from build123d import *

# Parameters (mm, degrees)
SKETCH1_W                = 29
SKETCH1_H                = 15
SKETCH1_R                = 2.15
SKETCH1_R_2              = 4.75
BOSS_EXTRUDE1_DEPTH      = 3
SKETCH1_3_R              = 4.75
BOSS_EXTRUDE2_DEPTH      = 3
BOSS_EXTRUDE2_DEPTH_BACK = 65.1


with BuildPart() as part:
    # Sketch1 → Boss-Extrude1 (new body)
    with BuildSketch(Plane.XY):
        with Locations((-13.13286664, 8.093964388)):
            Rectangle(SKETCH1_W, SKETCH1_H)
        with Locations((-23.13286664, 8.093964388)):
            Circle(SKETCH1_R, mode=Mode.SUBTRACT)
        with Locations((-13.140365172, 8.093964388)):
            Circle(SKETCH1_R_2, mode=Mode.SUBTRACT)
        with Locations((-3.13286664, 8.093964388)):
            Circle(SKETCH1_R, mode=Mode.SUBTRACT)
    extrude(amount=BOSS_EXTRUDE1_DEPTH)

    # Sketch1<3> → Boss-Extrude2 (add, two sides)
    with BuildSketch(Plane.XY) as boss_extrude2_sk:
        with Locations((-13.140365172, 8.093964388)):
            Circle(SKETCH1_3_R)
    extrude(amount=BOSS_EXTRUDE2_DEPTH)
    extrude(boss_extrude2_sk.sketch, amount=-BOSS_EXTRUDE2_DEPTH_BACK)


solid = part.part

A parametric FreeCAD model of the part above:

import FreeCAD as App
import Part
import Sketcher

V = App.Vector


def add_polygon(sketch, points):
    """Adds a closed chain of lines whose ends are joined by coincident constraints."""
    first, n = sketch.GeometryCount, len(points)
    for a, b in zip(points, points[1:] + points[:1]):
        sketch.addGeometry(Part.LineSegment(App.Vector(*a, 0), App.Vector(*b, 0)), False)
    for i in range(n):
        sketch.addConstraint(Sketcher.Constraint("Coincident", first + i, 2, first + (i + 1) % n, 1))

doc = App.newDocument("Part")
body = doc.addObject("PartDesign::Body", "Body")

sketch1 = doc.addObject("Sketcher::SketchObject", "Sketch")
body.addObject(sketch1)
sketch1.AttachmentSupport = (doc.XY_Plane, [""])
sketch1.MapMode = "FlatFace"
add_polygon(sketch1, [(-27.632867, 15.593964), (-27.632867, 0.593964), (1.367133, 0.593964), (1.367133, 15.593964)])
sketch1.addGeometry(Part.Circle(V(-23.132867, 8.093964, 0), V(0, 0, 1), 2.15), False)
sketch1.addGeometry(Part.Circle(V(-13.140365, 8.093964, 0), V(0, 0, 1), 4.75), False)
sketch1.addGeometry(Part.Circle(V(-3.132867, 8.093964, 0), V(0, 0, 1), 2.15), False)
sketch1.addConstraint([
    Sketcher.Constraint("Vertical", 0),
    Sketcher.Constraint("Horizontal", 1),
    Sketcher.Constraint("Vertical", 2),
    Sketcher.Constraint("Horizontal", 3),
    Sketcher.Constraint("Equal", 4, 6),
    Sketcher.Constraint("Horizontal", 4, 3, 5, 3),
    Sketcher.Constraint("Horizontal", 5, 3, 6, 3),
    Sketcher.Constraint("Diameter", 4, 4.3),
    Sketcher.Constraint("Diameter", 5, 9.5),
    Sketcher.Constraint("DistanceX", 1, 1, 1, 2, 29.0),
    Sketcher.Constraint("DistanceY", 0, 2, 0, 1, 15.0),
    Sketcher.Constraint("DistanceX", 4, 3, 6, 3, 20.0),
    Sketcher.Constraint("DistanceX", 0, 2, 4, 3, 4.5),
    Sketcher.Constraint("DistanceY", 0, 2, 4, 3, 7.5),
    Sketcher.Constraint("DistanceX", 4, 3, 5, 3, 9.992501),
    Sketcher.Constraint("DistanceX", 4, 3, -1, 1, 23.132867),
    Sketcher.Constraint("DistanceY", -1, 1, 4, 3, 8.093964),
])
pad1 = doc.addObject("PartDesign::Pad", "Pad")
body.addObject(pad1)
pad1.Profile = sketch1
pad1.Length = 3

sketch2 = doc.addObject("Sketcher::SketchObject", "Sketch001")
body.addObject(sketch2)
sketch2.AttachmentSupport = (doc.XY_Plane, [""])
sketch2.MapMode = "FlatFace"
sketch2.addGeometry(Part.Circle(V(-13.140365, 8.093964, 0), V(0, 0, 1), 4.75), False)
sketch2.addConstraint([
    Sketcher.Constraint("Diameter", 0, 9.5),
    Sketcher.Constraint("DistanceX", 0, 3, -1, 1, 13.140365),
    Sketcher.Constraint("DistanceY", -1, 1, 0, 3, 8.093964),
])
pad2 = doc.addObject("PartDesign::Pad", "Pad001")
body.addObject(pad2)
pad2.Profile = sketch2
pad2.Type = "TwoLengths"
pad2.Length = 3
pad2.Length2 = 65.1

doc.recompute()
